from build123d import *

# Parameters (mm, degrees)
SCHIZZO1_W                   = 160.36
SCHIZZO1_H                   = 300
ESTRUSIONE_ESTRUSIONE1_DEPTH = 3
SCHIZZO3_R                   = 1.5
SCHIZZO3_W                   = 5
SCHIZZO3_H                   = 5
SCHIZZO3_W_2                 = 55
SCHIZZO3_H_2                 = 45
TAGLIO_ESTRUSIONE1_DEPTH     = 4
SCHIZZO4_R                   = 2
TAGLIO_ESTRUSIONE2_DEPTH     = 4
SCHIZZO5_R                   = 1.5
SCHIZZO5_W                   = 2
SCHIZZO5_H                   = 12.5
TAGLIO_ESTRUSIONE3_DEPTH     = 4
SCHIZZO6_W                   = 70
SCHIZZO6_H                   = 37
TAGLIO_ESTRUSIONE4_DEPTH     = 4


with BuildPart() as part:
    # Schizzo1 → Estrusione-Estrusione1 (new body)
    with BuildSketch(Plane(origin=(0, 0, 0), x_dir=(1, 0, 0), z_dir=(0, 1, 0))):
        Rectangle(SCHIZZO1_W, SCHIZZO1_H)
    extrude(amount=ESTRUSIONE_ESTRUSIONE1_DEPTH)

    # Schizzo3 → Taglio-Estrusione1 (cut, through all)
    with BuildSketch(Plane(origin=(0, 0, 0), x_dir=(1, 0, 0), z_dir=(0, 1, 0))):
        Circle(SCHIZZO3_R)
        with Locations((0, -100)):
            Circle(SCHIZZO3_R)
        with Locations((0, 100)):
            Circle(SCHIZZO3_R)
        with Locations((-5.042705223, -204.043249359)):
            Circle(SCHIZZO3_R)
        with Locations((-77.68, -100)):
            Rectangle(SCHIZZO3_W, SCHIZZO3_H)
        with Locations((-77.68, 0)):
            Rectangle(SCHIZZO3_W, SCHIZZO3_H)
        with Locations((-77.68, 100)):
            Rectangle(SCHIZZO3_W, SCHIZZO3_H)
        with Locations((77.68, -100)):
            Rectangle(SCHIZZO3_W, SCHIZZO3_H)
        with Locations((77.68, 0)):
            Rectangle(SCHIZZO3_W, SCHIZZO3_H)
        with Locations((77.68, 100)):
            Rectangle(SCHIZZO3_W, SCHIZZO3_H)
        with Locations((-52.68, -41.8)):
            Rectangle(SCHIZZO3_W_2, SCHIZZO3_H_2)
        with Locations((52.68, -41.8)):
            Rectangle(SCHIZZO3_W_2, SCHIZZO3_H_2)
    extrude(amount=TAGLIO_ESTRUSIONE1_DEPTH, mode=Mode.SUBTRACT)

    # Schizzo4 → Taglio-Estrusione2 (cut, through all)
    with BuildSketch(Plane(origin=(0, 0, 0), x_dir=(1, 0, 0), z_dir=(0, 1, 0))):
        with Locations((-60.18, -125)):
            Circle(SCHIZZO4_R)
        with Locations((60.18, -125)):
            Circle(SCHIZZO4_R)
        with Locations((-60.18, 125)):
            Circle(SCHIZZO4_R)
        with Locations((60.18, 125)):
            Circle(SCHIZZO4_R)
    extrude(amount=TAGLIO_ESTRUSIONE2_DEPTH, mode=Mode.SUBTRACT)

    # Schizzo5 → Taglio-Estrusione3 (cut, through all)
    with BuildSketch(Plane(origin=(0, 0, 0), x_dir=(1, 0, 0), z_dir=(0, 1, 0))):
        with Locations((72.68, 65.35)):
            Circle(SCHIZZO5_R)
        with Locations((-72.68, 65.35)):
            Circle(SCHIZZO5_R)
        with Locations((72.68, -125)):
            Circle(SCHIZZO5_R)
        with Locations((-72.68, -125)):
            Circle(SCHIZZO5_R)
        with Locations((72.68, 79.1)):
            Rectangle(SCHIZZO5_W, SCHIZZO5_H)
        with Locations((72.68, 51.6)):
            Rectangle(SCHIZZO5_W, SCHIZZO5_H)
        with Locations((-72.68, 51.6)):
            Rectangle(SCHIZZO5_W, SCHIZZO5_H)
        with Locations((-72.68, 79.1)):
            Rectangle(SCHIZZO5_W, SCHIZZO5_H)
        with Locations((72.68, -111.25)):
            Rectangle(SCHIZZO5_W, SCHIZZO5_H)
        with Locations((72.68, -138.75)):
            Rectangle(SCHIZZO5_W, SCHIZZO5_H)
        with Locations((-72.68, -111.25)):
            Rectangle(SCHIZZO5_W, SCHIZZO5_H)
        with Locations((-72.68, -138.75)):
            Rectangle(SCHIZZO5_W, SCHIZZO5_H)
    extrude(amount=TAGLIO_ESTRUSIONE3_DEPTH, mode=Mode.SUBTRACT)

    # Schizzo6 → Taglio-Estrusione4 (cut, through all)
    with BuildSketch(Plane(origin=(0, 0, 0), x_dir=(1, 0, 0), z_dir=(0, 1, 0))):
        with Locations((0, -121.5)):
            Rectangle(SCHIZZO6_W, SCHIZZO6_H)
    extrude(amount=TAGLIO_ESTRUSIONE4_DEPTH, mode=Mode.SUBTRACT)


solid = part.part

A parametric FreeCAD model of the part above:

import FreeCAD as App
import Part
import Sketcher
from FreeCAD import Vector
Q = App.Units.Quantity

doc = App.newDocument("Part")
body = doc.addObject("PartDesign::Body", "Body")

# Sketch on XZ plane
sketch1 = body.newObject("Sketcher::SketchObject", "Sketch")
sketch1.AttachmentSupport = (doc.getObject("XZ_Plane"), [""])
sketch1.MapMode = "FlatFace"
sketch1.addGeometry([
    Part.LineSegment(Vector(-80, -150, 0), Vector(-80, 150, 0)),
    Part.LineSegment(Vector(-80, 150, 0), Vector(80, 150, 0)),
    Part.LineSegment(Vector(80, 150, 0), Vector(80, -150, 0)),
    Part.LineSegment(Vector(80, -150, 0), Vector(-80, -150, 0)),
], False)
sketch1.addConstraint([
    Sketcher.Constraint("Coincident", 0, 2, 1, 1),
    Sketcher.Constraint("Coincident", 1, 2, 2, 1),
    Sketcher.Constraint("Coincident", 2, 2, 3, 1),
    Sketcher.Constraint("Coincident", 3, 2, 0, 1),
    Sketcher.Constraint("Vertical", 0),
    Sketcher.Constraint("Horizontal", 1),
    Sketcher.Constraint("Vertical", 2),
    Sketcher.Constraint("Horizontal", 3),
    Sketcher.Constraint("Symmetric", 0, 2, 2, 2, -1, 1),
    Sketcher.Constraint("DistanceY", 0, 1, 0, 2, Q("300 mm")),
    Sketcher.Constraint("DistanceX", 1, 1, 1, 2, Q("160.36 mm")),
])
pad1 = body.newObject("PartDesign::Pad", "Pad")
pad1.Profile = sketch1
pad1.Length = 3
pad1.Reversed = True

# Sketch on XZ plane
sketch2 = body.newObject("Sketcher::SketchObject", "Sketch001")
sketch2.AttachmentSupport = (doc.getObject("XZ_Plane"), [""])
sketch2.MapMode = "FlatFace"
sketch2.addGeometry([
    Part.Circle(Vector(0, 0, 0), Vector(0, 0, 1), 1.5),  # 0
    Part.Circle(Vector(0, 100, 0), Vector(0, 0, 1), 1.5),  # 1
    Part.Circle(Vector(0, -100, 0), Vector(0, 0, 1), 1.5),  # 2
    Part.Circle(Vector(-5, 204, 0), Vector(0, 0, 1), 1.5),  # 3
    Part.LineSegment(Vector(-80.2, 97.5, 0), Vector(-80.2, 102.5, 0)),  # 4
    Part.LineSegment(Vector(-80.2, 102.5, 0), Vector(-75.2, 102.5, 0)),  # 5
    Part.LineSegment(Vector(-75.2, 102.5, 0), Vector(-75.2, 97.5, 0)),  # 6
    Part.LineSegment(Vector(-75.2, 97.5, 0), Vector(-80.2, 97.5, 0)),  # 7
    Part.LineSegment(Vector(-80.2, -2.5, 0), Vector(-80.2, 2.5, 0)),  # 8
    Part.LineSegment(Vector(-80.2, 2.5, 0), Vector(-75.2, 2.5, 0)),  # 9
    Part.LineSegment(Vector(-75.2, 2.5, 0), Vector(-75.2, -2.5, 0)),  # 10
    Part.LineSegment(Vector(-75.2, -2.5, 0), Vector(-80.2, -2.5, 0)),  # 11
    Part.LineSegment(Vector(-80.2, -102.5, 0), Vector(-80.2, -97.5, 0)),  # 12
    Part.LineSegment(Vector(-80.2, -97.5, 0), Vector(-75.2, -97.5, 0)),  # 13
    Part.LineSegment(Vector(-75.2, -97.5, 0), Vector(-75.2, -102.5, 0)),  # 14
    Part.LineSegment(Vector(-75.2, -102.5, 0), Vector(-80.2, -102.5, 0)),  # 15
    Part.LineSegment(Vector(75.2, 97.5, 0), Vector(75.2, 102.5, 0)),  # 16
    Part.LineSegment(Vector(75.2, 102.5, 0), Vector(80.2, 102.5, 0)),  # 17
    Part.LineSegment(Vector(80.2, 102.5, 0), Vector(80.2, 97.5, 0)),  # 18
    Part.LineSegment(Vector(80.2, 97.5, 0), Vector(75.2, 97.5, 0)),  # 19
    Part.LineSegment(Vector(75.2, -2.5, 0), Vector(75.2, 2.5, 0)),  # 20
    Part.LineSegment(Vector(75.2, 2.5, 0), Vector(80.2, 2.5, 0)),  # 21
    Part.LineSegment(Vector(80.2, 2.5, 0), Vector(80.2, -2.5, 0)),  # 22
    Part.LineSegment(Vector(80.2, -2.5, 0), Vector(75.2, -2.5, 0)),  # 23
    Part.LineSegment(Vector(75.2, -102.5, 0), Vector(75.2, -97.5, 0)),  # 24
    Part.LineSegment(Vector(75.2, -97.5, 0), Vector(80.2, -97.5, 0)),  # 25
    Part.LineSegment(Vector(80.2, -97.5, 0), Vector(80.2, -102.5, 0)),  # 26
    Part.LineSegment(Vector(80.2, -102.5, 0), Vector(75.2, -102.5, 0)),  # 27
    Part.LineSegment(Vector(-80.2, 19.3, 0), Vector(-80.2, 64.3, 0)),  # 28
    Part.LineSegment(Vector(-80.2, 64.3, 0), Vector(-25.2, 64.3, 0)),  # 29
    Part.LineSegment(Vector(-25.2, 64.3, 0), Vector(-25.2, 19.3, 0)),  # 30
    Part.LineSegment(Vector(-25.2, 19.3, 0), Vector(-80.2, 19.3, 0)),  # 31
    Part.LineSegment(Vector(25.2, 19.3, 0), Vector(25.2, 64.3, 0)),  # 32
    Part.LineSegment(Vector(25.2, 64.3, 0), Vector(80.2, 64.3, 0)),  # 33
    Part.LineSegment(Vector(80.2, 64.3, 0), Vector(80.2, 19.3, 0)),  # 34
    Part.LineSegment(Vector(80.2, 19.3, 0), Vector(25.2, 19.3, 0)),  # 35
], False)
sketch2.addConstraint([
    Sketcher.Constraint("Coincident", 4, 2, 5, 1),
    Sketcher.Constraint("Coincident", 5, 2, 6, 1),
    Sketcher.Constraint("Coincident", 6, 2, 7, 1),
    Sketcher.Constraint("Coincident", 7, 2, 4, 1),
    Sketcher.Constraint("Coincident", 8, 2, 9, 1),
    Sketcher.Constraint("Coincident", 9, 2, 10, 1),
    Sketcher.Constraint("Coincident", 10, 2, 11, 1),
    Sketcher.Constraint("Coincident", 11, 2, 8, 1),
    Sketcher.Constraint("Coincident", 12, 2, 13, 1),
    Sketcher.Constraint("Coincident", 13, 2, 14, 1),
    Sketcher.Constraint("Coincident", 14, 2, 15, 1),
    Sketcher.Constraint("Coincident", 15, 2, 12, 1),
    Sketcher.Constraint("Coincident", 16, 2, 17, 1),
    Sketcher.Constraint("Coincident", 17, 2, 18, 1),
    Sketcher.Constraint("Coincident", 18, 2, 19, 1),
    Sketcher.Constraint("Coincident", 19, 2, 16, 1),
    Sketcher.Constraint("Coincident", 20, 2, 21, 1),
    Sketcher.Constraint("Coincident", 21, 2, 22, 1),
    Sketcher.Constraint("Coincident", 22, 2, 23, 1),
    Sketcher.Constraint("Coincident", 23, 2, 20, 1),
    Sketcher.Constraint("Coincident", 24, 2, 25, 1),
    Sketcher.Constraint("Coincident", 25, 2, 26, 1),
    Sketcher.Constraint("Coincident", 26, 2, 27, 1),
    Sketcher.Constraint("Coincident", 27, 2, 24, 1),
    Sketcher.Constraint("Coincident", 28, 2, 29, 1),
    Sketcher.Constraint("Coincident", 29, 2, 30, 1),
    Sketcher.Constraint("Coincident", 30, 2, 31, 1),
    Sketcher.Constraint("Coincident", 31, 2, 28, 1),
    Sketcher.Constraint("Coincident", 32, 2, 33, 1),
    Sketcher.Constraint("Coincident", 33, 2, 34, 1),
    Sketcher.Constraint("Coincident", 34, 2, 35, 1),
    Sketcher.Constraint("Coincident", 35, 2, 32, 1),
    Sketcher.Constraint("Vertical", 4),
    Sketcher.Constraint("Horizontal", 5),
    Sketcher.Constraint("Vertical", 6),
    Sketcher.Constraint("Horizontal", 7),
    Sketcher.Constraint("Vertical", 8),
    Sketcher.Constraint("Horizontal", 9),
    Sketcher.Constraint("Vertical", 10),
    Sketcher.Constraint("Horizontal", 11),
    Sketcher.Constraint("Vertical", 12),
    Sketcher.Constraint("Horizontal", 13),
    Sketcher.Constraint("Vertical", 14),
    Sketcher.Constraint("Horizontal", 15),
    Sketcher.Constraint("Vertical", 16),
    Sketcher.Constraint("Horizontal", 17),
    Sketcher.Constraint("Vertical", 18),
    Sketcher.Constraint("Horizontal", 19),
    Sketcher.Constraint("Vertical", 20),
    Sketcher.Constraint("Horizontal", 21),
    Sketcher.Constraint("Vertical", 22),
    Sketcher.Constraint("Horizontal", 23),
    Sketcher.Constraint("Vertical", 24),
    Sketcher.Constraint("Horizontal", 25),
    Sketcher.Constraint("Vertical", 26),
    Sketcher.Constraint("Horizontal", 27),
    Sketcher.Constraint("Vertical", 28),
    Sketcher.Constraint("Horizontal", 29),
    Sketcher.Constraint("Vertical", 30),
    Sketcher.Constraint("Horizontal", 31),
    Sketcher.Constraint("Vertical", 32),
    Sketcher.Constraint("Horizontal", 33),
    Sketcher.Constraint("Vertical", 34),
    Sketcher.Constraint("Horizontal", 35),
    Sketcher.Constraint("Coincident", 0, 3, -1, 1),
    Sketcher.Constraint("Equal", 0, 1),
    Sketcher.Constraint("Equal", 1, 2),
    Sketcher.Constraint("Equal", 2, 3),
    Sketcher.Constraint("Symmetric", 1, 3, 2, 3, -1, 1),
    Sketcher.Constraint("Symmetric", 14, 2, 16, 2, -1, 1),
    Sketcher.Constraint("Symmetric", 12, 2, 18, 2, -1, 1),
    Sketcher.Constraint("Symmetric", 10, 2, 20, 2, -1, 1),
    Sketcher.Constraint("Symmetric", 8, 2, 22, 2, -1, 1),
    Sketcher.Constraint("Symmetric", 6, 2, 24, 2, -1, 1),
    Sketcher.Constraint("Symmetric", 4, 2, 26, 2, -1, 1),
    Sketcher.Constraint("Symmetric", 5, 2, 16, 2, -2),
    Sketcher.Constraint("Symmetric", 7, 2, 18, 2, -2),
    Sketcher.Constraint("Symmetric", 29, 2, 32, 2, -2),
    Sketcher.Constraint("Symmetric", 31, 2, 34, 2, -2),
    Sketcher.Constraint("PointOnObject", 1, 3, -2),
    Sketcher.Constraint("Horizontal", 9, 2, 20, 2),
    Sketcher.Constraint("Vertical", 7, 2, 8, 2),
    Sketcher.Constraint("Vertical", 6, 2, 9, 2),
    Sketcher.Constraint("Vertical", 15, 2, 28, 2),
    Sketcher.Constraint("Equal", 27, 4),
    Sketcher.Constraint("Equal", 6, 8),
    Sketcher.Constraint("Diameter", 0, Q("3 mm")),
    Sketcher.Constraint("DistanceX", 5, 1, 5, 2, Q("5 mm")),
    Sketcher.Constraint("DistanceX", 29, 1, 29, 2, Q("55 mm")),
    Sketcher.Constraint("DistanceY", 28, 1, 28, 2, Q("45 mm")),
    Sketcher.Constraint("DistanceY", -1, 1, 1, 3, Q("100 mm")),
    Sketcher.Constraint("DistanceY", 8, 2, 7, 2, Q("95 mm")),
    Sketcher.Constraint("DistanceY", -1, 1, 28, 2, Q("64.3 mm")),
    Sketcher.Constraint("DistanceX", 4, 2, -1, 1, Q("80.18 mm")),
    Sketcher.Constraint("DistanceY", -1, 1, 3, 3, Q("204.043249 mm")),
    Sketcher.Constraint("DistanceX", 3, 3, -1, 1, Q("5.042705 mm")),
])
pocket1 = body.newObject("PartDesign::Pocket", "Pocket")
pocket1.Profile = sketch2
pocket1.Type = "ThroughAll"

# Sketch on XZ plane
sketch3 = body.newObject("Sketcher::SketchObject", "Sketch002")
sketch3.AttachmentSupport = (doc.getObject("XZ_Plane"), [""])
sketch3.MapMode = "FlatFace"
sketch3.addGeometry([
    Part.Circle(Vector(-60.2, 125, 0), Vector(0, 0, 1), 2),
    Part.Circle(Vector(60.2, 125, 0), Vector(0, 0, 1), 2),
    Part.Circle(Vector(-60.2, -125, 0), Vector(0, 0, 1), 2),
    Part.Circle(Vector(60.2, -125, 0), Vector(0, 0, 1), 2),
], False)
sketch3.addConstraint([
    Sketcher.Constraint("Equal", 0, 1),
    Sketcher.Constraint("Equal", 1, 2),
    Sketcher.Constraint("Equal", 2, 3),
    Sketcher.Constraint("Symmetric", 1, 3, 2, 3, -1, 1),
    Sketcher.Constraint("Symmetric", 0, 3, 3, 3, -1, 1),
    Sketcher.Constraint("Symmetric", 0, 3, 1, 3, -2),
    Sketcher.Constraint("Diameter", 0, Q("4 mm")),
    Sketcher.Constraint("DistanceY", -1, 1, 0, 3, Q("125 mm")),
    Sketcher.Constraint("DistanceX", 0, 3, -1, 1, Q("60.18 mm")),
])
pocket2 = body.newObject("PartDesign::Pocket", "Pocket001")
pocket2.Profile = sketch3
pocket2.Type = "ThroughAll"

# Sketch on XZ plane
sketch4 = body.newObject("Sketcher::SketchObject", "Sketch003")
sketch4.AttachmentSupport = (doc.getObject("XZ_Plane"), [""])
sketch4.MapMode = "FlatFace"
sketch4.addGeometry([
    Part.Circle(Vector(72.7, -65.3, 0), Vector(0, 0, 1), 1.5),  # 0
    Part.Circle(Vector(-72.7, -65.3, 0), Vector(0, 0, 1), 1.5),  # 1
    Part.Circle(Vector(72.7, 125, 0), Vector(0, 0, 1), 1.5),  # 2
    Part.Circle(Vector(-72.7, 125, 0), Vector(0, 0, 1), 1.5),  # 3
    Part.LineSegment(Vector(71.7, -85.3, 0), Vector(71.7, -72.8, 0)),  # 4
    Part.LineSegment(Vector(71.7, -72.8, 0), Vector(73.7, -72.8, 0)),  # 5
    Part.LineSegment(Vector(73.7, -72.8, 0), Vector(73.7, -85.3, 0)),  # 6
    Part.LineSegment(Vector(73.7, -85.3, 0), Vector(71.7, -85.3, 0)),  # 7
    Part.LineSegment(Vector(71.7, -57.9, 0), Vector(71.7, -45.4, 0)),  # 8
    Part.LineSegment(Vector(71.7, -45.4, 0), Vector(73.7, -45.4, 0)),  # 9
    Part.LineSegment(Vector(73.7, -45.4, 0), Vector(73.7, -57.9, 0)),  # 10
    Part.LineSegment(Vector(73.7, -57.9, 0), Vector(71.7, -57.9, 0)),  # 11
    Part.LineSegment(Vector(-73.7, -57.9, 0), Vector(-73.7, -45.4, 0)),  # 12
    Part.LineSegment(Vector(-73.7, -45.4, 0), Vector(-71.7, -45.4, 0)),  # 13
    Part.LineSegment(Vector(-71.7, -45.4, 0), Vector(-71.7, -57.9, 0)),  # 14
    Part.LineSegment(Vector(-71.7, -57.9, 0), Vector(-73.7, -57.9, 0)),  # 15
    Part.LineSegment(Vector(-73.7, -85.3, 0), Vector(-73.7, -72.8, 0)),  # 16
    Part.LineSegment(Vector(-73.7, -72.8, 0), Vector(-71.7, -72.8, 0)),  # 17
    Part.LineSegment(Vector(-71.7, -72.8, 0), Vector(-71.7, -85.3, 0)),  # 18
    Part.LineSegment(Vector(-71.7, -85.3, 0), Vector(-73.7, -85.3, 0)),  # 19
    Part.LineSegment(Vector(71.7, 105, 0), Vector(71.7, 117.5, 0)),  # 20
    Part.LineSegment(Vector(71.7, 117.5, 0), Vector(73.7, 117.5, 0)),  # 21
    Part.LineSegment(Vector(73.7, 117.5, 0), Vector(73.7, 105, 0)),  # 22
    Part.LineSegment(Vector(73.7, 105, 0), Vector(71.7, 105, 0)),  # 23
    Part.LineSegment(Vector(71.7, 132.5, 0), Vector(71.7, 145, 0)),  # 24
    Part.LineSegment(Vector(71.7, 145, 0), Vector(73.7, 145, 0)),  # 25
    Part.LineSegment(Vector(73.7, 145, 0), Vector(73.7, 132.5, 0)),  # 26
    Part.LineSegment(Vector(73.7, 132.5, 0), Vector(71.7, 132.5, 0)),  # 27
    Part.LineSegment(Vector(-73.7, 105, 0), Vector(-73.7, 117.5, 0)),  # 28
    Part.LineSegment(Vector(-73.7, 117.5, 0), Vector(-71.7, 117.5, 0)),  # 29
    Part.LineSegment(Vector(-71.7, 117.5, 0), Vector(-71.7, 105, 0)),  # 30
    Part.LineSegment(Vector(-71.7, 105, 0), Vector(-73.7, 105, 0)),  # 31
    Part.LineSegment(Vector(-73.7, 132.5, 0), Vector(-73.7, 145, 0)),  # 32
    Part.LineSegment(Vector(-73.7, 145, 0), Vector(-71.7, 145, 0)),  # 33
    Part.LineSegment(Vector(-71.7, 145, 0), Vector(-71.7, 132.5, 0)),  # 34
    Part.LineSegment(Vector(-71.7, 132.5, 0), Vector(-73.7, 132.5, 0)),  # 35
], False)
sketch4.addConstraint([
    Sketcher.Constraint("Coincident", 4, 2, 5, 1),
    Sketcher.Constraint("Coincident", 5, 2, 6, 1),
    Sketcher.Constraint("Coincident", 6, 2, 7, 1),
    Sketcher.Constraint("Coincident", 7, 2, 4, 1),
    Sketcher.Constraint("Coincident", 8, 2, 9, 1),
    Sketcher.Constraint("Coincident", 9, 2, 10, 1),
    Sketcher.Constraint("Coincident", 10, 2, 11, 1),
    Sketcher.Constraint("Coincident", 11, 2, 8, 1),
    Sketcher.Constraint("Coincident", 12, 2, 13, 1),
    Sketcher.Constraint("Coincident", 13, 2, 14, 1),
    Sketcher.Constraint("Coincident", 14, 2, 15, 1),
    Sketcher.Constraint("Coincident", 15, 2, 12, 1),
    Sketcher.Constraint("Coincident", 16, 2, 17, 1),
    Sketcher.Constraint("Coincident", 17, 2, 18, 1),
    Sketcher.Constraint("Coincident", 18, 2, 19, 1),
    Sketcher.Constraint("Coincident", 19, 2, 16, 1),
    Sketcher.Constraint("Coincident", 20, 2, 21, 1),
    Sketcher.Constraint("Coincident", 21, 2, 22, 1),
    Sketcher.Constraint("Coincident", 22, 2, 23, 1),
    Sketcher.Constraint("Coincident", 23, 2, 20, 1),
    Sketcher.Constraint("Coincident", 24, 2, 25, 1),
    Sketcher.Constraint("Coincident", 25, 2, 26, 1),
    Sketcher.Constraint("Coincident", 26, 2, 27, 1),
    Sketcher.Constraint("Coincident", 27, 2, 24, 1),
    Sketcher.Constraint("Coincident", 28, 2, 29, 1),
    Sketcher.Constraint("Coincident", 29, 2, 30, 1),
    Sketcher.Constraint("Coincident", 30, 2, 31, 1),
    Sketcher.Constraint("Coincident", 31, 2, 28, 1),
    Sketcher.Constraint("Coincident", 32, 2, 33, 1),
    Sketcher.Constraint("Coincident", 33, 2, 34, 1),
    Sketcher.Constraint("Coincident", 34, 2, 35, 1),
    Sketcher.Constraint("Coincident", 35, 2, 32, 1),
    Sketcher.Constraint("Vertical", 4),
    Sketcher.Constraint("Horizontal", 5),
    Sketcher.Constraint("Vertical", 6),
    Sketcher.Constraint("Horizontal", 7),
    Sketcher.Constraint("Vertical", 8),
    Sketcher.Constraint("Horizontal", 9),
    Sketcher.Constraint("Vertical", 10),
    Sketcher.Constraint("Horizontal", 11),
    Sketcher.Constraint("Vertical", 12),
    Sketcher.Constraint("Horizontal", 13),
    Sketcher.Constraint("Vertical", 14),
    Sketcher.Constraint("Horizontal", 15),
    Sketcher.Constraint("Vertical", 16),
    Sketcher.Constraint("Horizontal", 17),
    Sketcher.Constraint("Vertical", 18),
    Sketcher.Constraint("Horizontal", 19),
    Sketcher.Constraint("Vertical", 20),
    Sketcher.Constraint("Horizontal", 21),
    Sketcher.Constraint("Vertical", 22),
    Sketcher.Constraint("Horizontal", 23),
    Sketcher.Constraint("Vertical", 24),
    Sketcher.Constraint("Horizontal", 25),
    Sketcher.Constraint("Vertical", 26),
    Sketcher.Constraint("Horizontal", 27),
    Sketcher.Constraint("Vertical", 28),
    Sketcher.Constraint("Horizontal", 29),
    Sketcher.Constraint("Vertical", 30),
    Sketcher.Constraint("Horizontal", 31),
    Sketcher.Constraint("Vertical", 32),
    Sketcher.Constraint("Horizontal", 33),
    Sketcher.Constraint("Vertical", 34),
    Sketcher.Constraint("Horizontal", 35),
    Sketcher.Constraint("Equal", 0, 1),
    Sketcher.Constraint("Equal", 1, 2),
    Sketcher.Constraint("Equal", 2, 3),
    Sketcher.Constraint("Symmetric", 0, 3, 1, 3, -2),
    Sketcher.Constraint("Symmetric", 2, 3, 3, 3, -2),
    Sketcher.Constraint("Symmetric", 9, 2, 12, 2, -2),
    Sketcher.Constraint("Symmetric", 11, 2, 14, 2, -2),
    Sketcher.Constraint("Symmetric", 5, 2, 16, 2, -2),
    Sketcher.Constraint("Symmetric", 7, 2, 18, 2, -2),
    Sketcher.Constraint("Symmetric", 21, 2, 28, 2, -2),
    Sketcher.Constraint("Symmetric", 23, 2, 30, 2, -2),
    Sketcher.Constraint("Symmetric", 25, 2, 32, 2, -2),
    Sketcher.Constraint("Symmetric", 27, 2, 34, 2, -2),
    Sketcher.Constraint("Vertical", 0, 3, 2, 3),
    Sketcher.Constraint("Vertical", 7, 2, 8, 2),
    Sketcher.Constraint("Vertical", 6, 2, 9, 2),
    Sketcher.Constraint("Vertical", 11, 2, 20, 2),
    Sketcher.Constraint("Vertical", 10, 2, 21, 2),
    Sketcher.Constraint("Vertical", 23, 2, 24, 2),
    Sketcher.Constraint("Vertical", 22, 2, 25, 2),
    Sketcher.Constraint("Equal", 6, 8),
    Sketcher.Constraint("Equal", 18, 20),
    Sketcher.Constraint("Equal", 22, 24),
    Sketcher.Constraint("Diameter", 0, Q("3 mm")),
    Sketcher.Constraint("DistanceX", 5, 1, 5, 2, Q("2 mm")),
    Sketcher.Constraint("DistanceY", 4, 1, 4, 2, Q("12.5 mm")),
    Sketcher.Constraint("DistanceY", -1, 1, 2, 3, Q("125 mm")),
    Sketcher.Constraint("DistanceY", -1, 1, 22, 2, Q("105 mm")),
    Sketcher.Constraint("DistanceY", -1, 1, 24, 2, Q("145 mm")),
    Sketcher.Constraint("DistanceX", 4, 2, 0, 3, Q("1 mm")),
    Sketcher.Constraint("DistanceY", 6, 2, 0, 3, Q("20 mm")),
    Sketcher.Constraint("DistanceY", 0, 3, 8, 2, Q("20 mm")),
    Sketcher.Constraint("DistanceX", -1, 1, 0, 3, Q("72.68 mm")),
    Sketcher.Constraint("DistanceY", 0, 3, -1, 1, Q("65.35 mm")),
])
pocket3 = body.newObject("PartDesign::Pocket", "Pocket002")
pocket3.Profile = sketch4
pocket3.Type = "ThroughAll"

# Sketch on XZ plane
sketch5 = body.newObject("Sketcher::SketchObject", "Sketch004")
sketch5.AttachmentSupport = (doc.getObject("XZ_Plane"), [""])
sketch5.MapMode = "FlatFace"
sketch5.addGeometry([
    Part.LineSegment(Vector(-35, 103, 0), Vector(-35, 140, 0)),
    Part.LineSegment(Vector(-35, 140, 0), Vector(35, 140, 0)),
    Part.LineSegment(Vector(35, 140, 0), Vector(35, 103, 0)),
    Part.LineSegment(Vector(35, 103, 0), Vector(-35, 103, 0)),
], False)
sketch5.addConstraint([
    Sketcher.Constraint("Coincident", 0, 2, 1, 1),
    Sketcher.Constraint("Coincident", 1, 2, 2, 1),
    Sketcher.Constraint("Coincident", 2, 2, 3, 1),
    Sketcher.Constraint("Coincident", 3, 2, 0, 1),
    Sketcher.Constraint("Vertical", 0),
    Sketcher.Constraint("Horizontal", 1),
    Sketcher.Constraint("Vertical", 2),
    Sketcher.Constraint("Horizontal", 3),
    Sketcher.Constraint("DistanceX", 1, 1, 1, 2, Q("70 mm")),
    Sketcher.Constraint("DistanceY", 0, 1, 0, 2, Q("37 mm")),
    Sketcher.Constraint("DistanceX", 0, 2, -1, 1, Q("35 mm")),
    Sketcher.Constraint("DistanceY", -1, 1, 0, 2, Q("140 mm")),
])
pocket4 = body.newObject("PartDesign::Pocket", "Pocket003")
pocket4.Profile = sketch5
pocket4.Type = "ThroughAll"

doc.recompute()
